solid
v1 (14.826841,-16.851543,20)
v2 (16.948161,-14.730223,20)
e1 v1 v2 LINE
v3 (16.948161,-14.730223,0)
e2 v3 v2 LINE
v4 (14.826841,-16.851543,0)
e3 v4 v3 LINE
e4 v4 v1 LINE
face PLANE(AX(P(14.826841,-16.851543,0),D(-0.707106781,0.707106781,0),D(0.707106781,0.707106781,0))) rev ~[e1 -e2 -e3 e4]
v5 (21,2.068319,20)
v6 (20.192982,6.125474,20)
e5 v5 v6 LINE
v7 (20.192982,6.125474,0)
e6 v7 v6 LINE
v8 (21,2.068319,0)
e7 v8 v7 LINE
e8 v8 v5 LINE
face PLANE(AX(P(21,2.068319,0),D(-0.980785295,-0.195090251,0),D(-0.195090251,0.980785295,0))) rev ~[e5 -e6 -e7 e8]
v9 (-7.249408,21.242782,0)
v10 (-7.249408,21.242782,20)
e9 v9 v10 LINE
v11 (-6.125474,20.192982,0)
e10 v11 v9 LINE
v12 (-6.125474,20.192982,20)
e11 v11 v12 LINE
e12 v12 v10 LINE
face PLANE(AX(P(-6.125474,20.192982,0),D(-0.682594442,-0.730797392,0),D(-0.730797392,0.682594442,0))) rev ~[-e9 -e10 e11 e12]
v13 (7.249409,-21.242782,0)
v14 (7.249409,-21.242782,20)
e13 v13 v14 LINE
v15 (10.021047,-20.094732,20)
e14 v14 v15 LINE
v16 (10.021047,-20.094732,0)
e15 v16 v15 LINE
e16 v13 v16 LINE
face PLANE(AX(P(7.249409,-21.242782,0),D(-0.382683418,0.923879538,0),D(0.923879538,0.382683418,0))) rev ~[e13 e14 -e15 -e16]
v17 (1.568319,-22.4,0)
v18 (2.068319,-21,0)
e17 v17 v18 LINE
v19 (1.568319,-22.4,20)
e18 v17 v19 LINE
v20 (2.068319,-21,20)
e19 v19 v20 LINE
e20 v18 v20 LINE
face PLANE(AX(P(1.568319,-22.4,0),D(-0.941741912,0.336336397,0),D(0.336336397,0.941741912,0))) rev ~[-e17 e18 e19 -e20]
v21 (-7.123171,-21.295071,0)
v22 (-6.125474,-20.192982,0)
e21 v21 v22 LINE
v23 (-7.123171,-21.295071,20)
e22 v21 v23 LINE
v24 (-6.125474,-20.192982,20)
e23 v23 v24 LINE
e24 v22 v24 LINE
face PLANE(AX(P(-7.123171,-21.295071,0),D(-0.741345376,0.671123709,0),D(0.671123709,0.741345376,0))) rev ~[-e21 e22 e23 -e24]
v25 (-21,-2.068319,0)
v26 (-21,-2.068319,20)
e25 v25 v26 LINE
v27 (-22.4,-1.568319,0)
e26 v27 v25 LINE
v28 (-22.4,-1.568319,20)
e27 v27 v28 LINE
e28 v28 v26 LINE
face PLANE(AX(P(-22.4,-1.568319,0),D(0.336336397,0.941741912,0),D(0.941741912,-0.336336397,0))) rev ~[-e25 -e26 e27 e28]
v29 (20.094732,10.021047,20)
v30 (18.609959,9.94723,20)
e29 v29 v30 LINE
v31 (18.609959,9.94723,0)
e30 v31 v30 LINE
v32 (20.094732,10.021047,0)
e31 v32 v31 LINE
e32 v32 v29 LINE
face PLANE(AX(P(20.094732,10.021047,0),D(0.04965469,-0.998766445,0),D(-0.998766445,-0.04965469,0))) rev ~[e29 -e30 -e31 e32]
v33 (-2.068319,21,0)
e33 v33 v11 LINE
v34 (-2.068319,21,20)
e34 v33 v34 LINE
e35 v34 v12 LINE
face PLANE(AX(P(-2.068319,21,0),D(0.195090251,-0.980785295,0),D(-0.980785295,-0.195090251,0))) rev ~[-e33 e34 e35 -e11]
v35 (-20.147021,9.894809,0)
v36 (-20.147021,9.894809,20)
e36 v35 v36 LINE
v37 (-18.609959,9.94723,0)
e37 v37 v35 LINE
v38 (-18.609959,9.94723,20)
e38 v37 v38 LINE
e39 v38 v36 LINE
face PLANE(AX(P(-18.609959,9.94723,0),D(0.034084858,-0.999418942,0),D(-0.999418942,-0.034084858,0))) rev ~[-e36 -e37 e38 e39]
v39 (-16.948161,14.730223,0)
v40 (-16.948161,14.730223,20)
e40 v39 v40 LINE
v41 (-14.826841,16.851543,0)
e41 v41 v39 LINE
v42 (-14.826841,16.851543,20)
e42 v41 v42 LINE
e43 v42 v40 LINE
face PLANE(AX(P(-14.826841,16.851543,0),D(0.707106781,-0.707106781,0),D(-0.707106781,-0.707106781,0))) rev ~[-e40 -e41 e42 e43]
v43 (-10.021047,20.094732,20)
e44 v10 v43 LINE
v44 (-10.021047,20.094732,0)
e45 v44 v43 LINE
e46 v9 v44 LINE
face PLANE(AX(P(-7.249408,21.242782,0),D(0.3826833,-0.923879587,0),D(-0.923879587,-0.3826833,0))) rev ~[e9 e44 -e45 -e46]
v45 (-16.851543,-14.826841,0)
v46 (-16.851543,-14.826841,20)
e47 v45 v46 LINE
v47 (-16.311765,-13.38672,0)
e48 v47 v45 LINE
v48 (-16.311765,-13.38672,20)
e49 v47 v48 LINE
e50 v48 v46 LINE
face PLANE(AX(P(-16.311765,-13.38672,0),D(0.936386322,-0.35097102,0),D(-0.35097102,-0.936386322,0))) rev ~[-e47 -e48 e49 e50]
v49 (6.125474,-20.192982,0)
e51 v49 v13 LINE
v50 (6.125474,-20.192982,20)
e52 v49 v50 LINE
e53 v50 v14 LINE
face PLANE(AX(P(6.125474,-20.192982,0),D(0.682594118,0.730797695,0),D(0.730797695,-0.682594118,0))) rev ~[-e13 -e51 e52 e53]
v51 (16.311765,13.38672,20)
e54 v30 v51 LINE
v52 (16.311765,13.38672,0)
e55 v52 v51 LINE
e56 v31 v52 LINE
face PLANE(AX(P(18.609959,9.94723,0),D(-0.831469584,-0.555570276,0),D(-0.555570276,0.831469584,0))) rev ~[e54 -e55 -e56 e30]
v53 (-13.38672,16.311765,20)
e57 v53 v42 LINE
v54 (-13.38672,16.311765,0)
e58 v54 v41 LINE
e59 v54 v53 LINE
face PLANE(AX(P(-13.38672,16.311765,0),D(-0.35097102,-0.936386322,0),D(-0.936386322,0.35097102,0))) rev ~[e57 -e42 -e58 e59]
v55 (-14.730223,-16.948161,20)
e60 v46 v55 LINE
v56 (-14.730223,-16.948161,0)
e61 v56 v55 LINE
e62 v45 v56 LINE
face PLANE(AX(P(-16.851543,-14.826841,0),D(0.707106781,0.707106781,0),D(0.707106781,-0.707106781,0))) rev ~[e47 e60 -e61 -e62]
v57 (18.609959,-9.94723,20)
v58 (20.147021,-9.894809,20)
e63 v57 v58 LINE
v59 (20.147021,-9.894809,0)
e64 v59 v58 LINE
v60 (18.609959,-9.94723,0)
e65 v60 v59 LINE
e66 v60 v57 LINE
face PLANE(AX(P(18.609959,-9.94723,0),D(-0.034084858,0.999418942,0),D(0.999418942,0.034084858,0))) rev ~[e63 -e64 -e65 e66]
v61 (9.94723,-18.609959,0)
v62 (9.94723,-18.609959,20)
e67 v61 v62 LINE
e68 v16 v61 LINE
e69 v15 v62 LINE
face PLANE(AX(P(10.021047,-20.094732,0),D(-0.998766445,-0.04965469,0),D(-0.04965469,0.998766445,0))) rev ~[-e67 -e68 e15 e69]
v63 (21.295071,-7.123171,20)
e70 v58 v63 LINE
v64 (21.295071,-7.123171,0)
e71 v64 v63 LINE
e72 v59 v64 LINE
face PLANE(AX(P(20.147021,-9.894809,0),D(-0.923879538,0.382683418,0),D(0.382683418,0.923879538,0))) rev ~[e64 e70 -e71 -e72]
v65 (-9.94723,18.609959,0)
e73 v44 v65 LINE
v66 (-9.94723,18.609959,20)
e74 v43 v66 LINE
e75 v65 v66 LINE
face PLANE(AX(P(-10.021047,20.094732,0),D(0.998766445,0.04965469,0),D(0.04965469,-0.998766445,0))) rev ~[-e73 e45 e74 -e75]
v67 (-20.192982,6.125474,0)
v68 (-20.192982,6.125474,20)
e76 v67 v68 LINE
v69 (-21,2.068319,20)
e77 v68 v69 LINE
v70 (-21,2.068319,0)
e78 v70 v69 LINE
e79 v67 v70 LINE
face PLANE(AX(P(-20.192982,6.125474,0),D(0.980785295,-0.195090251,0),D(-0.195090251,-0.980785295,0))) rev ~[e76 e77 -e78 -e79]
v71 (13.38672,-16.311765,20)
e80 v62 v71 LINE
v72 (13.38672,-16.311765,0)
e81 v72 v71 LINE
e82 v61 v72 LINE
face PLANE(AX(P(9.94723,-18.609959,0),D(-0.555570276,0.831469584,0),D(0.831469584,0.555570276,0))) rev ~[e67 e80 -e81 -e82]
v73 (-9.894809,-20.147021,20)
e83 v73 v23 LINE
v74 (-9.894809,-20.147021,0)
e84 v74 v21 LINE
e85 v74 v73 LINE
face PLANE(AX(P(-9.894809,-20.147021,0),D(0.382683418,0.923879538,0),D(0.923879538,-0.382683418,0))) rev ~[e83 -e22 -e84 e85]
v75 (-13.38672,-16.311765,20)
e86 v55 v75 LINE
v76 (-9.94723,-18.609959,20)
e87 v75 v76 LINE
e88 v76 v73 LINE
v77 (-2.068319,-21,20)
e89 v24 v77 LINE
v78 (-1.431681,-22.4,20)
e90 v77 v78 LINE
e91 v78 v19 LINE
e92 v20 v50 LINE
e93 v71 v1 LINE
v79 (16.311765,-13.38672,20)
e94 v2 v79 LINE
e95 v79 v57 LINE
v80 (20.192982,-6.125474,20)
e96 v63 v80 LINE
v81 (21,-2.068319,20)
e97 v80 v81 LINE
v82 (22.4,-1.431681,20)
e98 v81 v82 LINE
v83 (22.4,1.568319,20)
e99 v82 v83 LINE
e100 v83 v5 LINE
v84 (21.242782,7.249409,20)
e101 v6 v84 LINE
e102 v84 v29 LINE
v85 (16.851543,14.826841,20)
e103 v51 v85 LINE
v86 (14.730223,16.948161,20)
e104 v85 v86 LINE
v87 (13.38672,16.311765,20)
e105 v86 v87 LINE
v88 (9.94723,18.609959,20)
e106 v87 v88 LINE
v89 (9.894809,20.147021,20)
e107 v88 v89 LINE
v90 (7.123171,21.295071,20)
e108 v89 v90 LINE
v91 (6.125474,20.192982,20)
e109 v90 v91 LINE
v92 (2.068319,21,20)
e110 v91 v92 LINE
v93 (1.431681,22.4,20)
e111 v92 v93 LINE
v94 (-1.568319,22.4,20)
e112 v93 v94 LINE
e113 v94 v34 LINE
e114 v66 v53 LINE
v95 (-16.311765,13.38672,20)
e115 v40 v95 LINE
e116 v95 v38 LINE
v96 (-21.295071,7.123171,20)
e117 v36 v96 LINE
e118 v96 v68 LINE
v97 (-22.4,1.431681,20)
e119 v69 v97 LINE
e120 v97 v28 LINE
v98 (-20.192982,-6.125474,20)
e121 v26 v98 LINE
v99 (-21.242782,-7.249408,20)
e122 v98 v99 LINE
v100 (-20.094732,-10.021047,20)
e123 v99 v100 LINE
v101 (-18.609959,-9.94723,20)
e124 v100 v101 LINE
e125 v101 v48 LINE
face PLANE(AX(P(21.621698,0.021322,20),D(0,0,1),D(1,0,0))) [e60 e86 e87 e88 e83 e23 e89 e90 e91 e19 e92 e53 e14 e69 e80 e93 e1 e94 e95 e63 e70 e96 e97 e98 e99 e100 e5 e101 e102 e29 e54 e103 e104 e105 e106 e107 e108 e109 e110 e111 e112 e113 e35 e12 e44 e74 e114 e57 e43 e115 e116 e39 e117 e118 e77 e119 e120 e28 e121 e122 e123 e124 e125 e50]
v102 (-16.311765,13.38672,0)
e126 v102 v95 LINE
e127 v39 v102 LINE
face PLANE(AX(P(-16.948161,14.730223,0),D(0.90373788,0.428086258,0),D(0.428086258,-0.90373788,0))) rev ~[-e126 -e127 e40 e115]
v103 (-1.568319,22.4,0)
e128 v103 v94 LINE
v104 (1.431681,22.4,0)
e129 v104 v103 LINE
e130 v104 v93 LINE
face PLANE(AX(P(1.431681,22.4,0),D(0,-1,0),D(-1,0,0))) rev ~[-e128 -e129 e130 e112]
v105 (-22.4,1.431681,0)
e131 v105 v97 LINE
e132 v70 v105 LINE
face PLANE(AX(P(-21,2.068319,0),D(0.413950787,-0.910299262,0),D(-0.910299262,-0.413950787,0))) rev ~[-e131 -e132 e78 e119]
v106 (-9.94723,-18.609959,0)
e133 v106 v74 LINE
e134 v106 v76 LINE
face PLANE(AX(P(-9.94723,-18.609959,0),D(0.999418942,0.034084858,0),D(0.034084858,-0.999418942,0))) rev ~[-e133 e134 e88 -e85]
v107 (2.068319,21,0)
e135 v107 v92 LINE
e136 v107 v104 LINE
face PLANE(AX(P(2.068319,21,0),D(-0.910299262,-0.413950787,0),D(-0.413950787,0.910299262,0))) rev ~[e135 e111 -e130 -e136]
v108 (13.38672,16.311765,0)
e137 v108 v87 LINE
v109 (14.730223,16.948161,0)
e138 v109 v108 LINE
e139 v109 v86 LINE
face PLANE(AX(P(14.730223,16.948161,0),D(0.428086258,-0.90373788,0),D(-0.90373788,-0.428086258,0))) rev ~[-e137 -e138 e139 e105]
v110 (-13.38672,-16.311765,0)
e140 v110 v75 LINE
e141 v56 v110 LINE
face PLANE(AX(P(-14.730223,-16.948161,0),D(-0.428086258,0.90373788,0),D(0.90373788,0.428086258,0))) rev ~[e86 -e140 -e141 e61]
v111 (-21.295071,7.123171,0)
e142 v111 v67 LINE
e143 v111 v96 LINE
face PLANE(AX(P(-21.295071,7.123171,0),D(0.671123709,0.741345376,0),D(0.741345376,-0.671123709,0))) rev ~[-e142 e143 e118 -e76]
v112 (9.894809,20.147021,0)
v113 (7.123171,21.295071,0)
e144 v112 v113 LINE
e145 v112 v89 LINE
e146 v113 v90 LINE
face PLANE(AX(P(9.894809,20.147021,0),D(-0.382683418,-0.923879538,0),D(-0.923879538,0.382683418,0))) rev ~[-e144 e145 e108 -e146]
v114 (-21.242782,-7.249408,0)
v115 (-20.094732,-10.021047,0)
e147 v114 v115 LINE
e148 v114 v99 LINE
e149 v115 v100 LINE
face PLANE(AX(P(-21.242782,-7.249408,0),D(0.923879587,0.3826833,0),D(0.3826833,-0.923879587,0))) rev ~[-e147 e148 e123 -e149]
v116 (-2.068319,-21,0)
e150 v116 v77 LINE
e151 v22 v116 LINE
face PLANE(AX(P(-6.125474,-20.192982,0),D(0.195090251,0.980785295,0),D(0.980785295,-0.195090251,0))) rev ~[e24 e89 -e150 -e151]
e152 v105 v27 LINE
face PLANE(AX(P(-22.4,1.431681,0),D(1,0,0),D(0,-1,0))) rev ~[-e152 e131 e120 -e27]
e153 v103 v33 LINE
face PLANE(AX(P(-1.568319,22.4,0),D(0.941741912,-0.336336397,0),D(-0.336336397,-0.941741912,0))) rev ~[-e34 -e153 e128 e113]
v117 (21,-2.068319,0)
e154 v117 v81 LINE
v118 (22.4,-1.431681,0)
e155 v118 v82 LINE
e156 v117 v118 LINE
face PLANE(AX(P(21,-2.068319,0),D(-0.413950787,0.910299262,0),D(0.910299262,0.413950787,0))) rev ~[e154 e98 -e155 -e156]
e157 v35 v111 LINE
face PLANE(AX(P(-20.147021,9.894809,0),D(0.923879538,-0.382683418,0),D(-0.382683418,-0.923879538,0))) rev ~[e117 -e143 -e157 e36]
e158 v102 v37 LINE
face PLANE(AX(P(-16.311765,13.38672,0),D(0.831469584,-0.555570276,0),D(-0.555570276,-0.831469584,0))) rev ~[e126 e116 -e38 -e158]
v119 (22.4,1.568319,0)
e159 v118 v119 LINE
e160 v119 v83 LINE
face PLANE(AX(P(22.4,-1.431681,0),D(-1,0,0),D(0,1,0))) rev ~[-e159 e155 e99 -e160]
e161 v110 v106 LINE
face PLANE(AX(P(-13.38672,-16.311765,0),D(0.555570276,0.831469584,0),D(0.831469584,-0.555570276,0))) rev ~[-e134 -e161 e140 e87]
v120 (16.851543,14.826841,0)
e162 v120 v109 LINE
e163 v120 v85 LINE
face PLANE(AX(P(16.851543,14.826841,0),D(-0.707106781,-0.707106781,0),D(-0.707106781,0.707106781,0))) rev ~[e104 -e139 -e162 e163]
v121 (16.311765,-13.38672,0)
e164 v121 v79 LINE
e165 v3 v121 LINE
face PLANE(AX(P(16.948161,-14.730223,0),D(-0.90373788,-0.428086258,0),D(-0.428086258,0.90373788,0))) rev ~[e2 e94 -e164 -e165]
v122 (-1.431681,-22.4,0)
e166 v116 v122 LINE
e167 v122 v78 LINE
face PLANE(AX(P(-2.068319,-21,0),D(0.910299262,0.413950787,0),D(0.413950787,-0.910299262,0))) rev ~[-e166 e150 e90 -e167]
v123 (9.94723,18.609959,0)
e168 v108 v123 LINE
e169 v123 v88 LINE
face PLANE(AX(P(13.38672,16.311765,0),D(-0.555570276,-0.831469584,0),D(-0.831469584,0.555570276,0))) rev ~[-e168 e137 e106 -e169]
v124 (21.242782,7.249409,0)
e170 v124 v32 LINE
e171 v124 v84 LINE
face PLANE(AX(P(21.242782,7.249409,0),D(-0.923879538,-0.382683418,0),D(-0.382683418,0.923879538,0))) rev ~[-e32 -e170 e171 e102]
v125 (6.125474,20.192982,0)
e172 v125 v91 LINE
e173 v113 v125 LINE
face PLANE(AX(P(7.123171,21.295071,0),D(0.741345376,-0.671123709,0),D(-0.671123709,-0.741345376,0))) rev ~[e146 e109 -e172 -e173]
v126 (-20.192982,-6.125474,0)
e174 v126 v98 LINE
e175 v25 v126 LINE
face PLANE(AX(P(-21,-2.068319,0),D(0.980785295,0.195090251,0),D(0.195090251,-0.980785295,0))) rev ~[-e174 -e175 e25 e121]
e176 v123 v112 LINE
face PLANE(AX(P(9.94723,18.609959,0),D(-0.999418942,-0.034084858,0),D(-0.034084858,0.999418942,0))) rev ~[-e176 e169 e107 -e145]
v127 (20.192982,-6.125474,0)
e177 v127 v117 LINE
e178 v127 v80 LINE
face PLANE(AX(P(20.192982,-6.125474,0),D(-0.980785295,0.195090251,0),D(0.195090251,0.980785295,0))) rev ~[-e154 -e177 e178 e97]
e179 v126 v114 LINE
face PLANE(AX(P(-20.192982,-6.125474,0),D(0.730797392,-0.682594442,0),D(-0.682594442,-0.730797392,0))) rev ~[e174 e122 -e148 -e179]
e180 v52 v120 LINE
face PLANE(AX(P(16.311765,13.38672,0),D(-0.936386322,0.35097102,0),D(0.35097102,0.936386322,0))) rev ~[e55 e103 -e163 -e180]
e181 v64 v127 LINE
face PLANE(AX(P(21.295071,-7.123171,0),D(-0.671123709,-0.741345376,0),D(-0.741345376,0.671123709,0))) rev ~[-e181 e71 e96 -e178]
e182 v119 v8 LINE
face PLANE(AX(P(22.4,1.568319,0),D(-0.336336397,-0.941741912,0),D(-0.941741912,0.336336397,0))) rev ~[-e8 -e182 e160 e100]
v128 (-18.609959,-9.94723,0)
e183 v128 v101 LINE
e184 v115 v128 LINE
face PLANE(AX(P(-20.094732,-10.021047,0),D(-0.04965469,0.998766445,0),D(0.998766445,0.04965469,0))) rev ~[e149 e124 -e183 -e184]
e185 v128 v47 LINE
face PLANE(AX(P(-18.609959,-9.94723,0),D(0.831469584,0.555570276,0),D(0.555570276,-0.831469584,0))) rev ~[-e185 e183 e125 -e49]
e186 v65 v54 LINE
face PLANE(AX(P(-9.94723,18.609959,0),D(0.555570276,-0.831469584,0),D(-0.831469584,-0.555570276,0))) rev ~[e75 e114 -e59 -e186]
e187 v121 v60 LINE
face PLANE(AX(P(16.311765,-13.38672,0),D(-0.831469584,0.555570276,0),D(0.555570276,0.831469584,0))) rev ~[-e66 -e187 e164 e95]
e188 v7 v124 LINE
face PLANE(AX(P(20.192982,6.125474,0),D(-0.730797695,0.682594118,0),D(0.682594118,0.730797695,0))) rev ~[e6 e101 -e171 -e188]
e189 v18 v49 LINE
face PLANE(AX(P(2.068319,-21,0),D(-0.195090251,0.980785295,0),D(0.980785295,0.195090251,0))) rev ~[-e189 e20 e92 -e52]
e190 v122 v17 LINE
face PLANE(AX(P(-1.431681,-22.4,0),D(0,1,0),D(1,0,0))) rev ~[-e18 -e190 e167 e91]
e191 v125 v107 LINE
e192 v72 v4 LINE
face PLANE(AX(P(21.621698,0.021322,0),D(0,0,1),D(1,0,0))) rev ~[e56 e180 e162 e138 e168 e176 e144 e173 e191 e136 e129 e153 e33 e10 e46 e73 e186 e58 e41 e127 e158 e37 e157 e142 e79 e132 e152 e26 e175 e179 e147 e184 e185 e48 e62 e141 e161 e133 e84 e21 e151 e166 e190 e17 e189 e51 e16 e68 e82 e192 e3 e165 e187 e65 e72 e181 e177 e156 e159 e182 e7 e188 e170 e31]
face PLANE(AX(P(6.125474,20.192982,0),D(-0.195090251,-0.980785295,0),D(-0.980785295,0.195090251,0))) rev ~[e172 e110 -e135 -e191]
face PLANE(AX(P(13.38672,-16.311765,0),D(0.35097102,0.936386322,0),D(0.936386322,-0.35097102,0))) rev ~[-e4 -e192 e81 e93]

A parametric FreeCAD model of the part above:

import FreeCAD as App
import Part
import Sketcher
Q = App.Units.Quantity


def add_polygon(sketch, points):
    """Adds a closed chain of lines whose ends are joined by coincident constraints."""
    first, n = sketch.GeometryCount, len(points)
    for a, b in zip(points, points[1:] + points[:1]):
        sketch.addGeometry(Part.LineSegment(App.Vector(*a, 0), App.Vector(*b, 0)), False)
    for i in range(n):
        sketch.addConstraint(Sketcher.Constraint("Coincident", first + i, 2, first + (i + 1) % n, 1))

doc = App.newDocument("Part")
body = doc.addObject("PartDesign::Body", "Body")

# Sketch on XY plane
sketch1 = body.newObject("Sketcher::SketchObject", "Sketch")
sketch1.AttachmentSupport = (doc.getObject("XY_Plane"), [""])
sketch1.MapMode = "FlatFace"
add_polygon(sketch1, [(22.4, 1.568319), (21, 2.068319), (20.192982, 6.125474), (21.242782, 7.249409), (20.094732, 10.021047), (18.609959, 9.94723), (16.311765, 13.38672), (16.851543, 14.826841), (14.730223, 16.948161), (13.38672, 16.311765), (9.94723, 18.609959), (9.894809, 20.147021), (7.123171, 21.295071), (6.125474, 20.192982), (2.068319, 21), (1.431681, 22.4), (-1.568319, 22.4), (-2.068319, 21), (-6.125474, 20.192982), (-7.249408, 21.242782), (-10.021047, 20.094732), (-9.94723, 18.609959), (-13.38672, 16.311765), (-14.826841, 16.851543), (-16.948161, 14.730223), (-16.311765, 13.38672), (-18.609959, 9.94723), (-20.147021, 9.894809), (-21.295071, 7.123171), (-20.192982, 6.125474), (-21, 2.068319), (-22.4, 1.431681), (-22.4, -1.568319), (-21, -2.068319), (-20.192982, -6.125474), (-21.242782, -7.249408), (-20.094732, -10.021047), (-18.609959, -9.94723), (-16.311765, -13.38672), (-16.851543, -14.826841), (-14.730223, -16.948161), (-13.38672, -16.311765), (-9.94723, -18.609959), (-9.894809, -20.147021), (-7.123171, -21.295071), (-6.125474, -20.192982), (-2.068319, -21), (-1.431681, -22.4), (1.568319, -22.4), (2.068319, -21), (6.125474, -20.192982), (7.249409, -21.242782), (10.021047, -20.094732), (9.94723, -18.609959), (13.38672, -16.311765), (14.826841, -16.851543), (16.948161, -14.730223), (16.311765, -13.38672), (18.609959, -9.94723), (20.147021, -9.894809), (21.295071, -7.123171), (20.192982, -6.125474), (21, -2.068319), (22.4, -1.431681)])  # lines 0-63
sketch1.addConstraint(Sketcher.Constraint("Horizontal", 15))
sketch1.addConstraint(Sketcher.Constraint("Vertical", 31))
sketch1.addConstraint(Sketcher.Constraint("Horizontal", 47))
sketch1.addConstraint(Sketcher.Constraint("Vertical", 63))
sketch1.addConstraint(Sketcher.Constraint("Symmetric", 0, 2, 32, 2, -1, 1))
sketch1.addConstraint(Sketcher.Constraint("Symmetric", 1, 2, 33, 2, -1, 1))
sketch1.addConstraint(Sketcher.Constraint("Symmetric", 2, 2, 34, 2, -1, 1))
sketch1.addConstraint(Sketcher.Constraint("Symmetric", 3, 2, 35, 2, -1, 1))
sketch1.addConstraint(Sketcher.Constraint("Symmetric", 4, 2, 36, 2, -1, 1))
sketch1.addConstraint(Sketcher.Constraint("Symmetric", 5, 2, 37, 2, -1, 1))
sketch1.addConstraint(Sketcher.Constraint("Symmetric", 6, 2, 38, 2, -1, 1))
sketch1.addConstraint(Sketcher.Constraint("Symmetric", 7, 2, 39, 2, -1, 1))
sketch1.addConstraint(Sketcher.Constraint("Symmetric", 8, 2, 40, 2, -1, 1))
sketch1.addConstraint(Sketcher.Constraint("Symmetric", 9, 2, 41, 2, -1, 1))
sketch1.addConstraint(Sketcher.Constraint("Symmetric", 10, 2, 42, 2, -1, 1))
sketch1.addConstraint(Sketcher.Constraint("Symmetric", 11, 2, 43, 2, -1, 1))
sketch1.addConstraint(Sketcher.Constraint("Symmetric", 12, 2, 44, 2, -1, 1))
sketch1.addConstraint(Sketcher.Constraint("Symmetric", 13, 2, 45, 2, -1, 1))
sketch1.addConstraint(Sketcher.Constraint("Symmetric", 14, 2, 46, 2, -1, 1))
sketch1.addConstraint(Sketcher.Constraint("Symmetric", 16, 2, 48, 2, -1, 1))
sketch1.addConstraint(Sketcher.Constraint("Symmetric", 17, 2, 49, 2, -1, 1))
sketch1.addConstraint(Sketcher.Constraint("Symmetric", 18, 2, 50, 2, -1, 1))
sketch1.addConstraint(Sketcher.Constraint("Symmetric", 19, 2, 51, 2, -1, 1))
sketch1.addConstraint(Sketcher.Constraint("Symmetric", 20, 2, 52, 2, -1, 1))
sketch1.addConstraint(Sketcher.Constraint("Symmetric", 21, 2, 53, 2, -1, 1))
sketch1.addConstraint(Sketcher.Constraint("Symmetric", 22, 2, 54, 2, -1, 1))
sketch1.addConstraint(Sketcher.Constraint("Symmetric", 23, 2, 55, 2, -1, 1))
sketch1.addConstraint(Sketcher.Constraint("Symmetric", 24, 2, 56, 2, -1, 1))
sketch1.addConstraint(Sketcher.Constraint("Symmetric", 25, 2, 57, 2, -1, 1))
sketch1.addConstraint(Sketcher.Constraint("Symmetric", 26, 2, 58, 2, -1, 1))
sketch1.addConstraint(Sketcher.Constraint("Symmetric", 27, 2, 59, 2, -1, 1))
sketch1.addConstraint(Sketcher.Constraint("Symmetric", 28, 2, 60, 2, -1, 1))
sketch1.addConstraint(Sketcher.Constraint("Symmetric", 29, 2, 61, 2, -1, 1))
sketch1.addConstraint(Sketcher.Constraint("Symmetric", 30, 2, 62, 2, -1, 1))
sketch1.addConstraint(Sketcher.Constraint("Symmetric", 13, 2, 16, 2, -2))
sketch1.addConstraint(Sketcher.Constraint("Symmetric", 12, 2, 17, 2, -2))
sketch1.addConstraint(Sketcher.Constraint("Symmetric", 9, 2, 20, 2, -2))
sketch1.addConstraint(Sketcher.Constraint("Symmetric", 8, 2, 21, 2, -2))
sketch1.addConstraint(Sketcher.Constraint("Symmetric", 5, 2, 24, 2, -2))
sketch1.addConstraint(Sketcher.Constraint("Symmetric", 4, 2, 25, 2, -2))
sketch1.addConstraint(Sketcher.Constraint("Symmetric", 1, 2, 28, 2, -2))
sketch1.addConstraint(Sketcher.Constraint("Symmetric", 0, 2, 29, 2, -2))
sketch1.addConstraint(Sketcher.Constraint("Perpendicular", 0, 16))
sketch1.addConstraint(Sketcher.Constraint("Perpendicular", 1, 17))
sketch1.addConstraint(Sketcher.Constraint("Perpendicular", 2, 18))
sketch1.addConstraint(Sketcher.Constraint("Perpendicular", 3, 19))
sketch1.addConstraint(Sketcher.Constraint("Perpendicular", 4, 20))
sketch1.addConstraint(Sketcher.Constraint("Perpendicular", 5, 21))
sketch1.addConstraint(Sketcher.Constraint("Perpendicular", 6, 22))
sketch1.addConstraint(Sketcher.Constraint("Perpendicular", 7, 23))
sketch1.addConstraint(Sketcher.Constraint("Perpendicular", 8, 24))
sketch1.addConstraint(Sketcher.Constraint("Perpendicular", 10, 26))
sketch1.addConstraint(Sketcher.Constraint("Perpendicular", 11, 27))
sketch1.addConstraint(Sketcher.Constraint("Perpendicular", 12, 28))
sketch1.addConstraint(Sketcher.Constraint("Perpendicular", 14, 30))
sketch1.addConstraint(Sketcher.Constraint("Perpendicular", 16, 32))
sketch1.addConstraint(Sketcher.Constraint("Perpendicular", 32, 48))
sketch1.addConstraint(Sketcher.Constraint("Equal", 47, 31))
sketch1.addConstraint(Sketcher.Constraint("Equal", 0, 4))
sketch1.addConstraint(Sketcher.Constraint("Equal", 1, 5))
sketch1.addConstraint(Sketcher.Constraint("Equal", 2, 6))
sketch1.addConstraint(Sketcher.Constraint("Equal", 3, 7))
sketch1.addConstraint(Sketcher.Constraint("Equal", 4, 8))
sketch1.addConstraint(Sketcher.Constraint("Equal", 5, 9))
sketch1.addConstraint(Sketcher.Constraint("Equal", 6, 10))
sketch1.addConstraint(Sketcher.Constraint("Equal", 7, 11))
sketch1.addConstraint(Sketcher.Constraint("Equal", 8, 12))
sketch1.addConstraint(Sketcher.Constraint("Equal", 9, 13))
sketch1.addConstraint(Sketcher.Constraint("Equal", 10, 14))
sketch1.addConstraint(Sketcher.Constraint("Equal", 12, 16))
sketch1.addConstraint(Sketcher.Constraint("Equal", 14, 18))
sketch1.addConstraint(Sketcher.Constraint("Equal", 11, 19))
sketch1.addConstraint(Sketcher.Constraint("Equal", 16, 20))
sketch1.addConstraint(Sketcher.Constraint("Equal", 18, 22))
sketch1.addConstraint(Sketcher.Constraint("Equal", 19, 23))
sketch1.addConstraint(Sketcher.Constraint("Equal", 22, 26))
sketch1.addConstraint(Sketcher.Constraint("DistanceX", 15, 2, 15, 1, Q("3 mm")))
sketch1.addConstraint(Sketcher.Constraint("Angle", 7, Q("135 deg")))
sketch1.addConstraint(Sketcher.Constraint("Distance", 3, Q("2.999999 mm")))
sketch1.addConstraint(Sketcher.Constraint("DistanceX", -1, 1, 0, 2, Q("21 mm")))
sketch1.addConstraint(Sketcher.Constraint("Angle", 3, Q("112.499999 deg")))
sketch1.addConstraint(Sketcher.Constraint("Angle", 11, Q("157.500001 deg")))
sketch1.addConstraint(Sketcher.Constraint("DistanceY", -1, 1, 14, 2, Q("22.4 mm")))
sketch1.addConstraint(Sketcher.Constraint("Angle", 1, Q("101.249996 deg")))
sketch1.addConstraint(Sketcher.Constraint("Angle", 5, Q("123.750003 deg")))
sketch1.addConstraint(Sketcher.Constraint("Distance", 1, Q("4.136639 mm")))
sketch1.addConstraint(Sketcher.Constraint("DistanceY", -1, 1, 0, 2, Q("2.068319 mm")))
sketch1.addConstraint(Sketcher.Constraint("DistanceX", -1, 1, 2, 2, Q("21.242782 mm")))
sketch1.addConstraint(Sketcher.Constraint("DistanceY", -1, 1, 2, 2, Q("7.249409 mm")))
sketch1.addConstraint(Sketcher.Constraint("DistanceX", -1, 1, 4, 2, Q("18.609959 mm")))
pad1 = body.newObject("PartDesign::Pad", "Pad")
pad1.Profile = sketch1
pad1.Length = 20

doc.recompute()
